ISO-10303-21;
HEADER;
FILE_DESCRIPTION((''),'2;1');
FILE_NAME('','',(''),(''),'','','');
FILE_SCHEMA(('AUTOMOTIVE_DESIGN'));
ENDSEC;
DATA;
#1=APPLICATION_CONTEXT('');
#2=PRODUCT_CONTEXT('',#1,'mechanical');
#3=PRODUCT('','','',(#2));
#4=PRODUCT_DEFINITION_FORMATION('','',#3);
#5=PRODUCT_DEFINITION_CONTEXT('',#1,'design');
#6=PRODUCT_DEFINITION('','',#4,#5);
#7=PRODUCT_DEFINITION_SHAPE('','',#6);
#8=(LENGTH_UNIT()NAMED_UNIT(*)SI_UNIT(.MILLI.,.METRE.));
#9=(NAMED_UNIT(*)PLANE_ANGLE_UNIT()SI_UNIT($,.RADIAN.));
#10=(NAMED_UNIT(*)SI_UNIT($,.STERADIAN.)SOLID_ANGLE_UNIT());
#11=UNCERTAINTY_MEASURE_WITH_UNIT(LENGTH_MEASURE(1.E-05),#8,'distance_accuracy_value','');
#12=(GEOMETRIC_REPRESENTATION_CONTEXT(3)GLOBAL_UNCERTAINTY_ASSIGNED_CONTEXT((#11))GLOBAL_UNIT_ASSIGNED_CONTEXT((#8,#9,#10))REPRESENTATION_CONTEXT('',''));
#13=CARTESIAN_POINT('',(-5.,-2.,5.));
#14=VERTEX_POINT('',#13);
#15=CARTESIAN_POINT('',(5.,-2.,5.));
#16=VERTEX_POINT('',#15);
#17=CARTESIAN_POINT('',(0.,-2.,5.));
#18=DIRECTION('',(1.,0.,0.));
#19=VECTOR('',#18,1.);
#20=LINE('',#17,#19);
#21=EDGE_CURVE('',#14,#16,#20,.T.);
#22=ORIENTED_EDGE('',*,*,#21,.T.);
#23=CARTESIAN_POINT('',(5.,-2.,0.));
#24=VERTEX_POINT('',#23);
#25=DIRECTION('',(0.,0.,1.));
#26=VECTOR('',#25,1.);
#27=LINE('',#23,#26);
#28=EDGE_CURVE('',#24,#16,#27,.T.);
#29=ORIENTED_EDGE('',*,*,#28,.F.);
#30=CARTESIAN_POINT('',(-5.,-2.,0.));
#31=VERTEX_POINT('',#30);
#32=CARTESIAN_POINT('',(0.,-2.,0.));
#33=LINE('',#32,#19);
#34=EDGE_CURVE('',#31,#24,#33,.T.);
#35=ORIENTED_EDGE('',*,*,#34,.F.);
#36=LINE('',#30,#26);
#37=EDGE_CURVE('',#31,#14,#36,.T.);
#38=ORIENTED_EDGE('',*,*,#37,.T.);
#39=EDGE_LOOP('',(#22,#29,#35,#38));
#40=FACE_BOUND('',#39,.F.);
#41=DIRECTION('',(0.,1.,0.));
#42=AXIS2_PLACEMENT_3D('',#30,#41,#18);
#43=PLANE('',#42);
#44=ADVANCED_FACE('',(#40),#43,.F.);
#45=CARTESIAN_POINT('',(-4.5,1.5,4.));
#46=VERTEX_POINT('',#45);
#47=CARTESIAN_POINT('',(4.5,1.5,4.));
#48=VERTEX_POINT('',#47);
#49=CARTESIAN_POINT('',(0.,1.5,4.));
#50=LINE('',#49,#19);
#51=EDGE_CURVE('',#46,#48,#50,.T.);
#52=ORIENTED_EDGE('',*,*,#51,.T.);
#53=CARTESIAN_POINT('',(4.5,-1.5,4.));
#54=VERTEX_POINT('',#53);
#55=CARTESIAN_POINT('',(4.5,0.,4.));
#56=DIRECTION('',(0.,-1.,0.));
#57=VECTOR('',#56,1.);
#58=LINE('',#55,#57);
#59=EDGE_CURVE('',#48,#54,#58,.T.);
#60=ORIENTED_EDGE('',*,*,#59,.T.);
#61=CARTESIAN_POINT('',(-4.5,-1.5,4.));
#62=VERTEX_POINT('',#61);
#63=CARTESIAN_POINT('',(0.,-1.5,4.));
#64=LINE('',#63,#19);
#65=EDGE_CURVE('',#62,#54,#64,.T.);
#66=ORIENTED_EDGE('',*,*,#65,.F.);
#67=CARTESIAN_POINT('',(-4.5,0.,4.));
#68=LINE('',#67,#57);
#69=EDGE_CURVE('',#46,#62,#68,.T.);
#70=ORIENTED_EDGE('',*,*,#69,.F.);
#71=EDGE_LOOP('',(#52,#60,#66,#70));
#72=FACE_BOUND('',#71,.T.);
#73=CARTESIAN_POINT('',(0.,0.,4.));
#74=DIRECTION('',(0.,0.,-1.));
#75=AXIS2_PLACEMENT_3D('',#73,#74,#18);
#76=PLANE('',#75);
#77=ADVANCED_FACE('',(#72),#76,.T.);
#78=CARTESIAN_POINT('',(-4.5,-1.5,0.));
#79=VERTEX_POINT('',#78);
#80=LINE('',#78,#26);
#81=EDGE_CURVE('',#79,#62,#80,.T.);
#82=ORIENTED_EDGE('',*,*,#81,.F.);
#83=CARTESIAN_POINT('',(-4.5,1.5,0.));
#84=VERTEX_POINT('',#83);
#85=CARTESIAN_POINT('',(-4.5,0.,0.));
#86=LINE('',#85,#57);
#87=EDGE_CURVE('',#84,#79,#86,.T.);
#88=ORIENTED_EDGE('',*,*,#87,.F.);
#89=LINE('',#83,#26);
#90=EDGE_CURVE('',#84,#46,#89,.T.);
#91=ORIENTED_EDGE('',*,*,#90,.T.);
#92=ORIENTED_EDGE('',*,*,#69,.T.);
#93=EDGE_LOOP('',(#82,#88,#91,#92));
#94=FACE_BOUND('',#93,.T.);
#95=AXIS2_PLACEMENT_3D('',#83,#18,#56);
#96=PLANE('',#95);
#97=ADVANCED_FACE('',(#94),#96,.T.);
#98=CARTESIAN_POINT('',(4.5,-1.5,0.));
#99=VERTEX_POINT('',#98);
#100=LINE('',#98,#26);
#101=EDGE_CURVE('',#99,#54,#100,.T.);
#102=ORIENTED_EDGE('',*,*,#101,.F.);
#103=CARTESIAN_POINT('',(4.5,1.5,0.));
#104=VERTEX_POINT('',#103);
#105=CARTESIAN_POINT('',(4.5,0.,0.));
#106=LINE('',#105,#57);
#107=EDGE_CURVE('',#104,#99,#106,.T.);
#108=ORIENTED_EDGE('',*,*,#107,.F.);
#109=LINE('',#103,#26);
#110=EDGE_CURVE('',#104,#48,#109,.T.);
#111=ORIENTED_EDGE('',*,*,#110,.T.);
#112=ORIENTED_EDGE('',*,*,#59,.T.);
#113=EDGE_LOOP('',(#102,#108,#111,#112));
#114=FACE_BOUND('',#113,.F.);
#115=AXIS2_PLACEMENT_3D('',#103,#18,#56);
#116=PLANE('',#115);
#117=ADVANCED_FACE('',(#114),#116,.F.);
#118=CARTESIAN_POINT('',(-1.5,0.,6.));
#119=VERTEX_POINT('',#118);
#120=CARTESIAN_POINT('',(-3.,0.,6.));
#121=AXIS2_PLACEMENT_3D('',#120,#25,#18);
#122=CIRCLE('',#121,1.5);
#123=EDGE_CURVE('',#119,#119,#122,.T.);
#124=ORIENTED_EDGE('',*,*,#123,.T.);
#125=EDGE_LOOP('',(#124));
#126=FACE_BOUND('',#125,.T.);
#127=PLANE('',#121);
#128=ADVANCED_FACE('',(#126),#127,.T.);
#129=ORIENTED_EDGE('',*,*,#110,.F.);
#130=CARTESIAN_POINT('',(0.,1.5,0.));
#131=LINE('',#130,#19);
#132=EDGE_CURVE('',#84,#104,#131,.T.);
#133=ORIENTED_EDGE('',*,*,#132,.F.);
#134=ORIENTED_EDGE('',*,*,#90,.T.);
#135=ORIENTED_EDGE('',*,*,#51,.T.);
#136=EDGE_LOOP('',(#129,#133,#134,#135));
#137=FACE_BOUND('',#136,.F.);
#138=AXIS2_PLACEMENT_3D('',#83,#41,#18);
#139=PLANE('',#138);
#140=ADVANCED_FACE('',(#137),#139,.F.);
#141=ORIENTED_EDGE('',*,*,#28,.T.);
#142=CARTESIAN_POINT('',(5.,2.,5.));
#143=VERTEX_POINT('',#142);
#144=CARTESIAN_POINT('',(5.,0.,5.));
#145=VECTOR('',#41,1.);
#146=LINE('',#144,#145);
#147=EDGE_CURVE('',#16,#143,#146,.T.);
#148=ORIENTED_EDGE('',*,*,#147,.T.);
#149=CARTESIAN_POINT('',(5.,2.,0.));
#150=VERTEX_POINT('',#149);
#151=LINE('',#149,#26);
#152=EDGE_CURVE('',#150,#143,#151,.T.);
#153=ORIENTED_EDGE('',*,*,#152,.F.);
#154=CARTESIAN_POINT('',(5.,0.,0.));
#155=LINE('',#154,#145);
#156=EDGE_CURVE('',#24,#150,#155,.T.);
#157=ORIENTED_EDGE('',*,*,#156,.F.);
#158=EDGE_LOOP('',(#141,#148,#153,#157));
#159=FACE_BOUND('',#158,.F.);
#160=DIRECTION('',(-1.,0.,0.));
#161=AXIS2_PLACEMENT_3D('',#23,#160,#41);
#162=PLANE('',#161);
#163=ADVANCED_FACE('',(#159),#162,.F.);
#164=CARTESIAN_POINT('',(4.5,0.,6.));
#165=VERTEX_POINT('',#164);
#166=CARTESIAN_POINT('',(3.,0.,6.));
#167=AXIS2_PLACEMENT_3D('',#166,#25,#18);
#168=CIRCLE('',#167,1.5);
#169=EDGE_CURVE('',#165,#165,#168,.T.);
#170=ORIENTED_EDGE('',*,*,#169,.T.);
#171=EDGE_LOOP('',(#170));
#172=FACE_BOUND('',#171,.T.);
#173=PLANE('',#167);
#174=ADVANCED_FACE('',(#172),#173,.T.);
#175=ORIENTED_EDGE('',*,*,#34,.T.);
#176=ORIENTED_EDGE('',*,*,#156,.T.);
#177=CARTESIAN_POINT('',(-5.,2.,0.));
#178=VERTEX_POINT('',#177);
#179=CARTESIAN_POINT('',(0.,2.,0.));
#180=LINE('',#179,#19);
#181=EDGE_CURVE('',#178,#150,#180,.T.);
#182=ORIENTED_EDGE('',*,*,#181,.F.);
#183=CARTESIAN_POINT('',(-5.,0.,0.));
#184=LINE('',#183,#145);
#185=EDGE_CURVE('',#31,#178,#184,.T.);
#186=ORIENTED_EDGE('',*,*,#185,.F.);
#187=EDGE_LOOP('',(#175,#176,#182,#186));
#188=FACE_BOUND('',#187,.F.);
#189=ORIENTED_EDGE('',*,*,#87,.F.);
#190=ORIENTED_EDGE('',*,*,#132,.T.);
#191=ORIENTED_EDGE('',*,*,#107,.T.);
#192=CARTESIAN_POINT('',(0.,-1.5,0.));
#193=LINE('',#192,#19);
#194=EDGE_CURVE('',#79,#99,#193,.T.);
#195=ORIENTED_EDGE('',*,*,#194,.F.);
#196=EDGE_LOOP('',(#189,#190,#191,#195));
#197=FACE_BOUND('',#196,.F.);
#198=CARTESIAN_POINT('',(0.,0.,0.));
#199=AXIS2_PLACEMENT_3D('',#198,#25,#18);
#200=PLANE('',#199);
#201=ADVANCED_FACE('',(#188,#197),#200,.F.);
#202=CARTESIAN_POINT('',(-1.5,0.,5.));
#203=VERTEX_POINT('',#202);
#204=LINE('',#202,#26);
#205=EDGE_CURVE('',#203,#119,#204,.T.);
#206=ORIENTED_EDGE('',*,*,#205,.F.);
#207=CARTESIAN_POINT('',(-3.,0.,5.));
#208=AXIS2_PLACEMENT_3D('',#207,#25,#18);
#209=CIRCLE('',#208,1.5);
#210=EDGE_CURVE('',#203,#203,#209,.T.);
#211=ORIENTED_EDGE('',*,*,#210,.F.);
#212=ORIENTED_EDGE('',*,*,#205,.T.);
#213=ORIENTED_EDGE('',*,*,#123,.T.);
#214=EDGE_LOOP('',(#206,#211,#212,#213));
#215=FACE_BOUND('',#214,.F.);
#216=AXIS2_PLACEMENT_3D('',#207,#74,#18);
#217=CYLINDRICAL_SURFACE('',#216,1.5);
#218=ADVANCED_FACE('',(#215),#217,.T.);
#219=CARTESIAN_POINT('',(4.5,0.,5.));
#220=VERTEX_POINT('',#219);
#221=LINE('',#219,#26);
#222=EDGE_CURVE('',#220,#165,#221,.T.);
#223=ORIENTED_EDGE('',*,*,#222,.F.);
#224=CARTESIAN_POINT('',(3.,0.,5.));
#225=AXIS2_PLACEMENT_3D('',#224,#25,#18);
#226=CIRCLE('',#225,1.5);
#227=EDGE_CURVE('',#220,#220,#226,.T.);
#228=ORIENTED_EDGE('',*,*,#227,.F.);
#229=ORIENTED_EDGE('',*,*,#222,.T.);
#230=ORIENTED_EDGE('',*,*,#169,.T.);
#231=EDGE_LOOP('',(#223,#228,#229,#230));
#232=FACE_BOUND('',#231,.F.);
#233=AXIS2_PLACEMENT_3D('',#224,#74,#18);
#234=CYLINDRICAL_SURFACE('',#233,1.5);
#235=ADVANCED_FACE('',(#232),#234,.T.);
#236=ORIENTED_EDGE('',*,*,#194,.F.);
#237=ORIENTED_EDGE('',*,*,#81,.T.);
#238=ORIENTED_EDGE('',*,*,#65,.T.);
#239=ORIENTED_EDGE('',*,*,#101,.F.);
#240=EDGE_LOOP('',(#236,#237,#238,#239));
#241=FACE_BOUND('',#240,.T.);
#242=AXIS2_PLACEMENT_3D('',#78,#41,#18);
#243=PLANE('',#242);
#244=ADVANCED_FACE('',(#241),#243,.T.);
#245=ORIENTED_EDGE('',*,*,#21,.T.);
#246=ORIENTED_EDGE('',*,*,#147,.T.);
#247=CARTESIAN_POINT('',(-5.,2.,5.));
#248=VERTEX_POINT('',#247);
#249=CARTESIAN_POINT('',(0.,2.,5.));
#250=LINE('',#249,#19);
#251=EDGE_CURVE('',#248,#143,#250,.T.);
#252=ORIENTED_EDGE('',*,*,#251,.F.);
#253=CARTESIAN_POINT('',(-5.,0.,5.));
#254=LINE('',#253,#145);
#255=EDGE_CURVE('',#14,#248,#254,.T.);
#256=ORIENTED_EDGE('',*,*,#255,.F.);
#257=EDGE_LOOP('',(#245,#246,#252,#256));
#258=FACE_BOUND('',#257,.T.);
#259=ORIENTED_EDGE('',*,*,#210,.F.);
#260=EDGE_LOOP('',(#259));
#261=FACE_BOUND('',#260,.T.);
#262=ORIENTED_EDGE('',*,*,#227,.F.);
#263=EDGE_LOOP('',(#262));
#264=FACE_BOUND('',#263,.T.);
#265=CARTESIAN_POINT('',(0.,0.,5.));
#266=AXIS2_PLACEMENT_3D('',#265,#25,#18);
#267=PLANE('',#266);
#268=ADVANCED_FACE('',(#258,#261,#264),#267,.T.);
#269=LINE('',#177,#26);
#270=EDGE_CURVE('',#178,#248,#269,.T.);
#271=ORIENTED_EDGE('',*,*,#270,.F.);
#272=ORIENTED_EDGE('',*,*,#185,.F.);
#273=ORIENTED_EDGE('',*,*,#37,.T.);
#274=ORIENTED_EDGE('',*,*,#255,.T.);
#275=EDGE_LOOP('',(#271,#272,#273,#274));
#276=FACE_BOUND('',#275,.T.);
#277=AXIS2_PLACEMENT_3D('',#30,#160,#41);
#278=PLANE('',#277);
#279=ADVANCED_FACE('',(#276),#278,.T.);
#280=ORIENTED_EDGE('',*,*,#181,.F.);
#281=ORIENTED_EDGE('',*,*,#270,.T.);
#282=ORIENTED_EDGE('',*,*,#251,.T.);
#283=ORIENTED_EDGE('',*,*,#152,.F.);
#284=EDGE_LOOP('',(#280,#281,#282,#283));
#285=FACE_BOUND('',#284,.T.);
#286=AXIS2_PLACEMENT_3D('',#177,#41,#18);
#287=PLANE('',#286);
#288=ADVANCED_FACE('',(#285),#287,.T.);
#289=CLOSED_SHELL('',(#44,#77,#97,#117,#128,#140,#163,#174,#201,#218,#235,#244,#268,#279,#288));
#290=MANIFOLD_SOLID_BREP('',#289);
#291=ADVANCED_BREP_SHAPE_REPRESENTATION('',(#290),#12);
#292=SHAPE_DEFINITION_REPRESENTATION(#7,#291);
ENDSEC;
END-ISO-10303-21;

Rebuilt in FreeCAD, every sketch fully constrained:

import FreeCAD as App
import Part
import Sketcher

V = App.Vector
Q = App.Units.Quantity


def add_polygon(sketch, points):
    """Adds a closed chain of lines whose ends are joined by coincident constraints."""
    first, n = sketch.GeometryCount, len(points)
    for a, b in zip(points, points[1:] + points[:1]):
        sketch.addGeometry(Part.LineSegment(App.Vector(*a, 0), App.Vector(*b, 0)), False)
    for i in range(n):
        sketch.addConstraint(Sketcher.Constraint("Coincident", first + i, 2, first + (i + 1) % n, 1))

doc = App.newDocument("Part")
body = doc.addObject("PartDesign::Body", "Body")

# Sketch on XY plane
sketch1 = doc.addObject("Sketcher::SketchObject", "Sketch")
body.addObject(sketch1)
sketch1.AttachmentSupport = (doc.XY_Plane, [""])
sketch1.MapMode = "FlatFace"
add_polygon(sketch1, [(-5, 2), (-5, -2), (5, -2), (5, 2)])  # lines 0-3
sketch1.addConstraint(Sketcher.Constraint("Vertical", 0))
sketch1.addConstraint(Sketcher.Constraint("Horizontal", 1))
sketch1.addConstraint(Sketcher.Constraint("Vertical", 2))
sketch1.addConstraint(Sketcher.Constraint("Horizontal", 3))
sketch1.addConstraint(Sketcher.Constraint("Symmetric", 0, 2, 2, 2, -1, 1))
sketch1.addConstraint(Sketcher.Constraint("DistanceX", 1, 1, 1, 2, Q("10 mm")))
sketch1.addConstraint(Sketcher.Constraint("DistanceY", 0, 2, 0, 1, Q("4 mm")))
pad1 = doc.addObject("PartDesign::Pad", "Pad")
body.addObject(pad1)
pad1.Profile = sketch1
pad1.Length = 5

# Sketch on XY plane
sketch2 = doc.addObject("Sketcher::SketchObject", "Sketch001")
body.addObject(sketch2)
sketch2.AttachmentSupport = (doc.XY_Plane, [""])
sketch2.MapMode = "FlatFace"
add_polygon(sketch2, [(-4.5, -1.5), (-4.5, 1.5), (4.5, 1.5), (4.5, -1.5)])  # lines 0-3
sketch2.addConstraint(Sketcher.Constraint("Vertical", 0))
sketch2.addConstraint(Sketcher.Constraint("Horizontal", 1))
sketch2.addConstraint(Sketcher.Constraint("Vertical", 2))
sketch2.addConstraint(Sketcher.Constraint("Horizontal", 3))
sketch2.addConstraint(Sketcher.Constraint("Symmetric", 0, 2, 2, 2, -1, 1))
sketch2.addConstraint(Sketcher.Constraint("DistanceX", 1, 1, 1, 2, Q("9 mm")))
sketch2.addConstraint(Sketcher.Constraint("DistanceY", 0, 1, 0, 2, Q("3 mm")))
pocket1 = doc.addObject("PartDesign::Pocket", "Pocket")
body.addObject(pocket1)
pocket1.Profile = sketch2
pocket1.Length = 4
pocket1.Reversed = True

# Sketch on XY plane
sketch3 = doc.addObject("Sketcher::SketchObject", "Sketch002")
body.addObject(sketch3)
sketch3.AttachmentSupport = (doc.XY_Plane, [""])
sketch3.MapMode = "FlatFace"
sketch3.AttachmentOffset = App.Placement(V(0, 0, 5), App.Rotation())
sketch3.addGeometry(Part.Circle(V(-3, 0, 0), V(0, 0, 1), 1.5), False)
sketch3.addGeometry(Part.Circle(V(3, 0, 0), V(0, 0, 1), 1.5), False)
sketch3.addConstraint(Sketcher.Constraint("Equal", 0, 1))
sketch3.addConstraint(Sketcher.Constraint("Symmetric", 0, 3, 1, 3, -1, 1))
sketch3.addConstraint(Sketcher.Constraint("PointOnObject", 0, 3, -1))
sketch3.addConstraint(Sketcher.Constraint("Diameter", 0, Q("3 mm")))
sketch3.addConstraint(Sketcher.Constraint("DistanceX", 0, 3, -1, 1, Q("3 mm")))
pad2 = doc.addObject("PartDesign::Pad", "Pad001")
body.addObject(pad2)
pad2.Profile = sketch3
pad2.Length = 1

doc.recompute()
